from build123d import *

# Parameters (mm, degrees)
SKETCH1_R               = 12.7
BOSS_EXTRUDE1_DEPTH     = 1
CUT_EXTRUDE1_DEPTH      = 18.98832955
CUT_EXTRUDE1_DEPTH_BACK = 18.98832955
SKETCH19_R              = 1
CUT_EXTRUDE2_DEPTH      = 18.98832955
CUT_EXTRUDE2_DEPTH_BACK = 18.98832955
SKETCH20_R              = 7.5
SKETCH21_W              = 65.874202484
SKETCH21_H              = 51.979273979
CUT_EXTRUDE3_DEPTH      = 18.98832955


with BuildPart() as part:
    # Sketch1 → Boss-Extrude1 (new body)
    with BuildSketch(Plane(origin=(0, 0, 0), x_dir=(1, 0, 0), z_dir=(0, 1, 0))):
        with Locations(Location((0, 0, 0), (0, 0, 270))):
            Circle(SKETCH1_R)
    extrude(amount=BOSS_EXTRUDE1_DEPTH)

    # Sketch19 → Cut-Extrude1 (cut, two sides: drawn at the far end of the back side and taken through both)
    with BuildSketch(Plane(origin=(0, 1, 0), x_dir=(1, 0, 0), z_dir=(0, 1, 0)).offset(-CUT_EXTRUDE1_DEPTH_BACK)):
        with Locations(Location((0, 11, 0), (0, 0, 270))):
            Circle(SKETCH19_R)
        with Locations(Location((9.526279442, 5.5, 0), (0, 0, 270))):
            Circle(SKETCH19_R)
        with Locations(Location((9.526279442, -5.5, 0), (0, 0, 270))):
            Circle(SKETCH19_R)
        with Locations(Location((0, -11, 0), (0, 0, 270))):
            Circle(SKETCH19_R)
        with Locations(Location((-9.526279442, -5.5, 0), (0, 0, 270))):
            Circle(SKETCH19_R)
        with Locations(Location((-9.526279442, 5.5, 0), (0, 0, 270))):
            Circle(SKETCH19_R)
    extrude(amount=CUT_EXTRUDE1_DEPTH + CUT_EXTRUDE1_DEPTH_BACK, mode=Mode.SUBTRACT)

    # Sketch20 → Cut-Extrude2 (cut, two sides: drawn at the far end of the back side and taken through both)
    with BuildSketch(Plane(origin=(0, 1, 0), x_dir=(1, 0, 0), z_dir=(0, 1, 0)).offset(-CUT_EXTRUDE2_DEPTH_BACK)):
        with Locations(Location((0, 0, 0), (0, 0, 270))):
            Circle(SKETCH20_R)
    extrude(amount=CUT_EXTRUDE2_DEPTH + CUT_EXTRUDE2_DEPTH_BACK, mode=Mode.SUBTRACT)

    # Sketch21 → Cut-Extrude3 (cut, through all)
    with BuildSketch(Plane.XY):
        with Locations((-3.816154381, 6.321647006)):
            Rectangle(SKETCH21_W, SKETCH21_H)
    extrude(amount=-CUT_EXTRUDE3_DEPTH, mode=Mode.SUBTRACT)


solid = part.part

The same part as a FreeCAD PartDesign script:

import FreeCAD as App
import Part
import Sketcher
Q = App.Units.Quantity

doc = App.newDocument("Part")
body = doc.addObject("PartDesign::Body", "Body")

# Sketch on XZ plane
sketch1 = body.newObject("Sketcher::SketchObject", "Sketch")
sketch1.AttachmentSupport = (doc.getObject("XZ_Plane"), [""])
sketch1.MapMode = "FlatFace"
sketch1.addGeometry(Part.Circle(App.Vector(0, 0, 0), App.Vector(0, 0, 1), 13), False)
sketch1.addConstraint(Sketcher.Constraint("Coincident", 0, 3, -1, 1))
sketch1.addConstraint(Sketcher.Constraint("Diameter", 0, Q("25.4 mm")))
pad1 = body.newObject("PartDesign::Pad", "Pad")
pad1.Profile = sketch1
pad1.Length = 1
pad1.Reversed = True

# Sketch on XZ plane
sketch2 = body.newObject("Sketcher::SketchObject", "Sketch001")
sketch2.AttachmentSupport = (doc.getObject("XZ_Plane"), [""])
sketch2.MapMode = "FlatFace"
sketch2.AttachmentOffset = App.Placement(App.Vector(0, 0, -1), App.Rotation())
sketch2.addGeometry(Part.Circle(App.Vector(0, -11, 0), App.Vector(0, 0, 1), 1), False)
sketch2.addGeometry(Part.Circle(App.Vector(9.5, -5.5, 0), App.Vector(0, 0, 1), 1), False)
sketch2.addGeometry(Part.Circle(App.Vector(9.5, 5.5, 0), App.Vector(0, 0, 1), 1), False)
sketch2.addGeometry(Part.Circle(App.Vector(0, 11, 0), App.Vector(0, 0, 1), 1), False)
sketch2.addGeometry(Part.Circle(App.Vector(-9.5, 5.5, 0), App.Vector(0, 0, 1), 1), False)
sketch2.addGeometry(Part.Circle(App.Vector(-9.5, -5.5, 0), App.Vector(0, 0, 1), 1), False)
sketch2.addConstraint(Sketcher.Constraint("Equal", 0, 1))
sketch2.addConstraint(Sketcher.Constraint("Equal", 1, 2))
sketch2.addConstraint(Sketcher.Constraint("Equal", 2, 3))
sketch2.addConstraint(Sketcher.Constraint("Equal", 3, 4))
sketch2.addConstraint(Sketcher.Constraint("Equal", 4, 5))
sketch2.addConstraint(Sketcher.Constraint("Symmetric", 0, 3, 3, 3, -1, 1))
sketch2.addConstraint(Sketcher.Constraint("Symmetric", 1, 3, 4, 3, -1, 1))
sketch2.addConstraint(Sketcher.Constraint("Symmetric", 2, 3, 5, 3, -1, 1))
sketch2.addConstraint(Sketcher.Constraint("Symmetric", 2, 3, 4, 3, -2))
sketch2.addConstraint(Sketcher.Constraint("PointOnObject", 0, 3, -2))
sketch2.addConstraint(Sketcher.Constraint("Diameter", 0, Q("2 mm")))
sketch2.addConstraint(Sketcher.Constraint("DistanceY", 0, 3, -1, 1, Q("11 mm")))
sketch2.addConstraint(Sketcher.Constraint("DistanceY", 1, 3, 2, 3, Q("11 mm")))
sketch2.addConstraint(Sketcher.Constraint("DistanceX", -1, 1, 1, 3, Q("9.526279 mm")))
pocket1 = body.newObject("PartDesign::Pocket", "Pocket")
pocket1.Profile = sketch2
pocket1.Type = "ThroughAll"
pocket1.Midplane = True

# Sketch on XZ plane
sketch3 = body.newObject("Sketcher::SketchObject", "Sketch002")
sketch3.AttachmentSupport = (doc.getObject("XZ_Plane"), [""])
sketch3.MapMode = "FlatFace"
sketch3.AttachmentOffset = App.Placement(App.Vector(0, 0, -1), App.Rotation())
sketch3.addGeometry(Part.Circle(App.Vector(0, 0, 0), App.Vector(0, 0, 1), 8), False)
sketch3.addConstraint(Sketcher.Constraint("Coincident", 0, 3, -1, 1))
sketch3.addConstraint(Sketcher.Constraint("Diameter", 0, Q("15 mm")))
pocket2 = body.newObject("PartDesign::Pocket", "Pocket001")
pocket2.Profile = sketch3
pocket2.Type = "ThroughAll"
pocket2.Midplane = True

# Sketch on XY plane
sketch4 = body.newObject("Sketcher::SketchObject", "Sketch003")
sketch4.AttachmentSupport = (doc.getObject("XY_Plane"), [""])
sketch4.MapMode = "FlatFace"
sketch4.addGeometry(Part.LineSegment(App.Vector(-37, 32, 0), App.Vector(-37, -20, 0)), False)
sketch4.addGeometry(Part.LineSegment(App.Vector(-37, -20, 0), App.Vector(29, -20, 0)), False)
sketch4.addGeometry(Part.LineSegment(App.Vector(29, -20, 0), App.Vector(29, 32, 0)), False)
sketch4.addGeometry(Part.LineSegment(App.Vector(29, 32, 0), App.Vector(-37, 32, 0)), False)
sketch4.addConstraint(Sketcher.Constraint("Coincident", 0, 2, 1, 1))
sketch4.addConstraint(Sketcher.Constraint("Coincident", 1, 2, 2, 1))
sketch4.addConstraint(Sketcher.Constraint("Coincident", 2, 2, 3, 1))
sketch4.addConstraint(Sketcher.Constraint("Coincident", 3, 2, 0, 1))
sketch4.addConstraint(Sketcher.Constraint("Vertical", 0))
sketch4.addConstraint(Sketcher.Constraint("Horizontal", 1))
sketch4.addConstraint(Sketcher.Constraint("Vertical", 2))
sketch4.addConstraint(Sketcher.Constraint("Horizontal", 3))
sketch4.addConstraint(Sketcher.Constraint("DistanceX", 1, 1, 1, 2, Q("65.874202 mm")))
sketch4.addConstraint(Sketcher.Constraint("DistanceY", 0, 2, 0, 1, Q("51.979274 mm")))
sketch4.addConstraint(Sketcher.Constraint("DistanceY", 0, 2, -1, 1, Q("19.66799 mm")))
sketch4.addConstraint(Sketcher.Constraint("DistanceX", 0, 2, -1, 1, Q("36.753256 mm")))
pocket3 = body.newObject("PartDesign::Pocket", "Pocket002")
pocket3.Profile = sketch4
pocket3.Type = "ThroughAll"

doc.recompute()
